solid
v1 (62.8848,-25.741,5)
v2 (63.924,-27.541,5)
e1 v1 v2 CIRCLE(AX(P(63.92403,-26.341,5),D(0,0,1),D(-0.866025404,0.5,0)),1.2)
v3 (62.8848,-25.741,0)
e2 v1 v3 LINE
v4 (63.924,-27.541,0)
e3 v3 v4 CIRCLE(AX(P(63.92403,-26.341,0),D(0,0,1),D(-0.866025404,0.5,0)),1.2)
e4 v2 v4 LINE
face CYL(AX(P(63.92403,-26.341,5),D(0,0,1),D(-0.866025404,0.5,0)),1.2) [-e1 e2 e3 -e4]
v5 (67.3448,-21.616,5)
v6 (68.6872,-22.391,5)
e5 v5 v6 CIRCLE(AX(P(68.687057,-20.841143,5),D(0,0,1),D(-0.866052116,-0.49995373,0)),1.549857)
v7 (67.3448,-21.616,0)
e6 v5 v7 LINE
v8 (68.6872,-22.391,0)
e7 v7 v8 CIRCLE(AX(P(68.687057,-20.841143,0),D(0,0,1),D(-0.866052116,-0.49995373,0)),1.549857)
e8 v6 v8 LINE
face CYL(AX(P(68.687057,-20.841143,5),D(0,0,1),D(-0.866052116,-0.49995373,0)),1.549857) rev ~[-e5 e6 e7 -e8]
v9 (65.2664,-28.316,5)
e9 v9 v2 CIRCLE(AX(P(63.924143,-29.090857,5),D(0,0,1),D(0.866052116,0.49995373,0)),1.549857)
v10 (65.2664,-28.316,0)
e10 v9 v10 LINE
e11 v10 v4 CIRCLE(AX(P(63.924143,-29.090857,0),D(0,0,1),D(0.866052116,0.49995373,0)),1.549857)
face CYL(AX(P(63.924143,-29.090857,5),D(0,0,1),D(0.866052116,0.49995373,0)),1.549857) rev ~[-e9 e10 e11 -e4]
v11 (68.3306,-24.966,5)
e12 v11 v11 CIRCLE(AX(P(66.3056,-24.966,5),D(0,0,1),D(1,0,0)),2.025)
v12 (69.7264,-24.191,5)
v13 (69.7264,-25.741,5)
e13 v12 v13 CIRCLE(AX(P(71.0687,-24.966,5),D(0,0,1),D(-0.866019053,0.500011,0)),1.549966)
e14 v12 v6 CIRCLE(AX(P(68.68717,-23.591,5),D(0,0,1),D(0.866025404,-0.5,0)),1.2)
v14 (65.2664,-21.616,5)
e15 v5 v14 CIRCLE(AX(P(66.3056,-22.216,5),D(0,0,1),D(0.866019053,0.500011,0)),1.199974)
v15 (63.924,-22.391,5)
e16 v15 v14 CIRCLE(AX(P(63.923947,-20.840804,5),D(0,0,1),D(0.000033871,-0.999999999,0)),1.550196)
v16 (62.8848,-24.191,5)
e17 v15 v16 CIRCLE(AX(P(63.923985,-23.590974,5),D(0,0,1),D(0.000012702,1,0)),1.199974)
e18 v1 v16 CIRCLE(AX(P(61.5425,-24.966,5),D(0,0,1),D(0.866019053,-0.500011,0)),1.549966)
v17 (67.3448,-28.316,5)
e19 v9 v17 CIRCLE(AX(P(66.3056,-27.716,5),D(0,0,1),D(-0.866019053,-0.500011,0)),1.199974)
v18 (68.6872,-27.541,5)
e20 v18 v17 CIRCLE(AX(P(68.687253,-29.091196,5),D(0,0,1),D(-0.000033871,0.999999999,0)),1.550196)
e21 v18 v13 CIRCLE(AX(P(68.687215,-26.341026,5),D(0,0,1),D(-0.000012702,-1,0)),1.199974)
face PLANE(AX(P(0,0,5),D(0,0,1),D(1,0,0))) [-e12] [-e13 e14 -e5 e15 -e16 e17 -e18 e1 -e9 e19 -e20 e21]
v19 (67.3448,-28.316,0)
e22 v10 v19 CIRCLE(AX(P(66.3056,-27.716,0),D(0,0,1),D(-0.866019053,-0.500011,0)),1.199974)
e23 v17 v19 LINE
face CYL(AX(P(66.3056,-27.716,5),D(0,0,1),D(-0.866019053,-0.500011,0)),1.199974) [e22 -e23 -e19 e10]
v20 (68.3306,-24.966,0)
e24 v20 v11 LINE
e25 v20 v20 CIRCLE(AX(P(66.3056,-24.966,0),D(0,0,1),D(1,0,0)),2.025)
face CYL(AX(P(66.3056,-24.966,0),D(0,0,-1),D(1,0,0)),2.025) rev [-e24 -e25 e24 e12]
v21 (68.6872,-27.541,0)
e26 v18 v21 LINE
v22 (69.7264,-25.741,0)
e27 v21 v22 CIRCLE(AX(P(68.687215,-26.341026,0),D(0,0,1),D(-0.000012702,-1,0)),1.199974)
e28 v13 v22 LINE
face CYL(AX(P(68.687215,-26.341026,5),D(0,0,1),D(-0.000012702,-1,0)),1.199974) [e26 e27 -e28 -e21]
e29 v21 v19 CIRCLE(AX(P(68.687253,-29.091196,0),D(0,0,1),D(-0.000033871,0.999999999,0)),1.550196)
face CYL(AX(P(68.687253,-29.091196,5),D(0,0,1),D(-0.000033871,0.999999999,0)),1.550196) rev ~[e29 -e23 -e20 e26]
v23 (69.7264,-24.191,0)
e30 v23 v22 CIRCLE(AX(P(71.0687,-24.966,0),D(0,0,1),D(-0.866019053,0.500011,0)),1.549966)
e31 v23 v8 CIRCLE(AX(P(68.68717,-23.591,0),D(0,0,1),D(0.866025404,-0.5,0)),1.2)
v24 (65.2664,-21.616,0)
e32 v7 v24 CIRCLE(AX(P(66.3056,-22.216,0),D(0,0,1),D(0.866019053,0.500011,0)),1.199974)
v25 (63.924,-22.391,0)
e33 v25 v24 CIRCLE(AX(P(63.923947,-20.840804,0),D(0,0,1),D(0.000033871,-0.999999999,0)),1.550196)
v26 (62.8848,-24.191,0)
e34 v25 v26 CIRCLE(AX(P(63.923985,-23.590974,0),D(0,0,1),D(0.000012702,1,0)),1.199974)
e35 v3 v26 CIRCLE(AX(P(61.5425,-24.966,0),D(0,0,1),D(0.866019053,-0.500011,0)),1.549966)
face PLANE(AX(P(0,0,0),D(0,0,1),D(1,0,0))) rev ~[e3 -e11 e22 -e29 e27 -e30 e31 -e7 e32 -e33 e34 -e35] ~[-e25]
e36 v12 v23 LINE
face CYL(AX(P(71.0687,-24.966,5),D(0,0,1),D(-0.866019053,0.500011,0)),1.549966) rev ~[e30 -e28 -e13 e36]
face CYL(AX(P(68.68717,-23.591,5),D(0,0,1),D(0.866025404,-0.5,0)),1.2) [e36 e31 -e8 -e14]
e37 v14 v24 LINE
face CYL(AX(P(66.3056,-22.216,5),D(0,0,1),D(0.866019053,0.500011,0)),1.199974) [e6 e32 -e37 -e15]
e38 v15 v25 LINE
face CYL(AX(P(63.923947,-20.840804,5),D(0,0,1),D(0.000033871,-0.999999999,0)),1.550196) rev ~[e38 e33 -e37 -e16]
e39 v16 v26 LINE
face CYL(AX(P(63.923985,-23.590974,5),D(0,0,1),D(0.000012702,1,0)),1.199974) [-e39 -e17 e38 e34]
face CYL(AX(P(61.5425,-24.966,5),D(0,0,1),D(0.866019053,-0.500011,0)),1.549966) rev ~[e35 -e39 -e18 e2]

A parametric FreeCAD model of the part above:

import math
import FreeCAD as App
import Part
import Sketcher

doc = App.newDocument("Part")
params = doc.addObject("Spreadsheet::Sheet", "Params")
for row, (alias, value) in enumerate([
    ("sketch1_radius", "1.5 mm"),
    ("sketch1_diameter", "4.05 mm"),
    ("sketch1_radius2", "1.25 mm"),
    ("pad1_length", "5 mm"),
    ("sketch2_radius", "1.5 mm"),
    ("sketch2_radius2", "1.2 mm"),
    ("sketch2_radius3", "1.25 mm"),
    ("pocket1_length", "10 mm"),
], start=1):
    params.set(f"A{row}", alias)
    params.set(f"B{row}", "=" + value)
    params.setAlias(f"B{row}", alias)

body = doc.addObject("PartDesign::Body", "Body")

# Sketch on XY plane
sketch1 = body.newObject("Sketcher::SketchObject", "Sketch")
sketch1.AttachmentSupport = (doc.getObject("XY_Plane"), [""])
sketch1.MapMode = "FlatFace"
sketch1.addGeometry(Part.ArcOfCircle(Part.Circle(App.Vector(71.1, -25, 0), App.Vector(0, 0, 1), 1.5), math.radians(150), math.radians(210)), False)
sketch1.addGeometry(Part.ArcOfCircle(Part.Circle(App.Vector(68.7, -23.6, 0), App.Vector(0, 0, 1), 1.2), math.radians(-30), math.radians(90)), False)
sketch1.addGeometry(Part.ArcOfCircle(Part.Circle(App.Vector(68.7, -20.8, 0), App.Vector(0, 0, 1), 1.5), math.radians(-150), math.radians(-90)), False)
sketch1.addGeometry(Part.ArcOfCircle(Part.Circle(App.Vector(66.3, -22.2, 0), App.Vector(0, 0, 1), 1.2), math.radians(30), math.radians(150)), False)
sketch1.addGeometry(Part.ArcOfCircle(Part.Circle(App.Vector(63.9, -20.8, 0), App.Vector(0, 0, 1), 1.5), math.radians(-90), math.radians(-30)), False)
sketch1.addGeometry(Part.ArcOfCircle(Part.Circle(App.Vector(63.9, -23.6, 0), App.Vector(0, 0, 1), 1.2), math.radians(90), math.radians(210)), False)
sketch1.addGeometry(Part.ArcOfCircle(Part.Circle(App.Vector(61.5, -25, 0), App.Vector(0, 0, 1), 1.5), math.radians(-30), math.radians(30)), False)
sketch1.addGeometry(Part.ArcOfCircle(Part.Circle(App.Vector(63.9, -26.3, 0), App.Vector(0, 0, 1), 1.2), math.radians(150), math.radians(270)), False)
sketch1.addGeometry(Part.ArcOfCircle(Part.Circle(App.Vector(63.9, -29.1, 0), App.Vector(0, 0, 1), 1.5), math.radians(30), math.radians(90)), False)
sketch1.addGeometry(Part.ArcOfCircle(Part.Circle(App.Vector(66.3, -27.7, 0), App.Vector(0, 0, 1), 1.2), math.radians(-150), math.radians(-30)), False)
sketch1.addGeometry(Part.ArcOfCircle(Part.Circle(App.Vector(68.7, -29.1, 0), App.Vector(0, 0, 1), 1.5), math.radians(90), math.radians(150)), False)
sketch1.addGeometry(Part.ArcOfCircle(Part.Circle(App.Vector(68.7, -26.3, 0), App.Vector(0, 0, 1), 1.2), math.radians(-90), math.radians(30)), False)
sketch1.addGeometry(Part.Circle(App.Vector(66.3, -25, 0), App.Vector(0, 0, 1), 2), False)
sketch1.addConstraint(Sketcher.Constraint("Tangent", 0, 1, 1, 1))
sketch1.addConstraint(Sketcher.Constraint("Tangent", 1, 2, 2, 2))
sketch1.addConstraint(Sketcher.Constraint("Tangent", 2, 1, 3, 1))
sketch1.addConstraint(Sketcher.Constraint("Tangent", 3, 2, 4, 2))
sketch1.addConstraint(Sketcher.Constraint("Tangent", 4, 1, 5, 1))
sketch1.addConstraint(Sketcher.Constraint("Tangent", 5, 2, 6, 2))
sketch1.addConstraint(Sketcher.Constraint("Tangent", 6, 1, 7, 1))
sketch1.addConstraint(Sketcher.Constraint("Tangent", 7, 2, 8, 2))
sketch1.addConstraint(Sketcher.Constraint("Tangent", 8, 1, 9, 1))
sketch1.addConstraint(Sketcher.Constraint("Tangent", 9, 2, 10, 2))
sketch1.addConstraint(Sketcher.Constraint("Tangent", 10, 1, 11, 1))
sketch1.addConstraint(Sketcher.Constraint("Tangent", 11, 2, 0, 2))
sketch1.addConstraint(Sketcher.Constraint("Equal", 0, 2))
sketch1.addConstraint(Sketcher.Constraint("Equal", 1, 3))
sketch1.addConstraint(Sketcher.Constraint("Equal", 2, 4))
sketch1.addConstraint(Sketcher.Constraint("Equal", 3, 5))
sketch1.addConstraint(Sketcher.Constraint("Equal", 4, 6))
sketch1.addConstraint(Sketcher.Constraint("Equal", 5, 7))
sketch1.addConstraint(Sketcher.Constraint("Equal", 6, 8))
sketch1.addConstraint(Sketcher.Constraint("Equal", 7, 9))
sketch1.addConstraint(Sketcher.Constraint("Equal", 8, 10))
sketch1.addConstraint(Sketcher.Constraint("Equal", 9, 11))
sketch1.addConstraint(Sketcher.Constraint("Horizontal", 2, 3, 4, 3))
sketch1.addConstraint(Sketcher.Constraint("Horizontal", 0, 3, 6, 3))
sketch1.addConstraint(Sketcher.Constraint("Horizontal", 8, 3, 10, 3))
sketch1.addConstraint(Sketcher.Constraint("Horizontal", 6, 3, 12, 3))
sketch1.addConstraint(Sketcher.Constraint("Vertical", 1, 3, 2, 3))
sketch1.addConstraint(Sketcher.Constraint("Vertical", 4, 3, 5, 3))
sketch1.addConstraint(Sketcher.Constraint("Vertical", 5, 3, 7, 3))
sketch1.addConstraint(Sketcher.Constraint("Vertical", 7, 3, 8, 3))
sketch1.addConstraint(Sketcher.Constraint("Vertical", 3, 3, 9, 3))
sketch1.addConstraint(Sketcher.Constraint("Vertical", 9, 3, 12, 3))
sketch1.addConstraint(Sketcher.Constraint("Radius", 0, 1.5))
sketch1.addConstraint(Sketcher.Constraint("Diameter", 12, 4.05))
sketch1.addConstraint(Sketcher.Constraint("Radius", 1, 1.25))
sketch1.addConstraint(Sketcher.Constraint("DistanceY", 6, 1, 5, 2, 1.5))
sketch1.addConstraint(Sketcher.Constraint("DistanceY", 1, 3, 2, 1, 2.0))
sketch1.addConstraint(Sketcher.Constraint("DistanceY", 0, 3, -1, 1, 24.966))
sketch1.addConstraint(Sketcher.Constraint("DistanceX", -1, 1, 4, 3, 63.924))
sketch1.setExpression("Constraints[32]", "Params.sketch1_radius")
sketch1.setExpression("Constraints[33]", "Params.sketch1_diameter")
sketch1.setExpression("Constraints[34]", "Params.sketch1_radius2")
pad1 = body.newObject("PartDesign::Pad", "Pad")
pad1.Profile = sketch1
pad1.setExpression("Length", "Params.pad1_length")

# Sketch on XY plane
sketch2 = body.newObject("Sketcher::SketchObject", "Sketch001")
sketch2.AttachmentSupport = (doc.getObject("XY_Plane"), [""])
sketch2.MapMode = "FlatFace"
sketch2.AttachmentOffset = App.Placement(App.Vector(0, 0, 5), App.Rotation())
sketch2.addGeometry(Part.ArcOfCircle(Part.Circle(App.Vector(68.7, -20.8, 0), App.Vector(0, 0, 1), 1.5), math.radians(-150), math.radians(-90)), False)
sketch2.addGeometry(Part.ArcOfCircle(Part.Circle(App.Vector(66.3, -22.2, 0), App.Vector(0, 0, 1), 1.2), math.radians(30), math.radians(150)), False)
sketch2.addGeometry(Part.ArcOfCircle(Part.Circle(App.Vector(63.9, -20.8, 0), App.Vector(0, 0, 1), 1.5), math.radians(-90), math.radians(-30)), False)
sketch2.addGeometry(Part.ArcOfCircle(Part.Circle(App.Vector(63.9, -23.6, 0), App.Vector(0, 0, 1), 1.2), math.radians(90), math.radians(210)), False)
sketch2.addGeometry(Part.ArcOfCircle(Part.Circle(App.Vector(61.5, -25, 0), App.Vector(0, 0, 1), 1.5), math.radians(-30), math.radians(30)), False)
sketch2.addGeometry(Part.ArcOfCircle(Part.Circle(App.Vector(63.9, -26.3, 0), App.Vector(0, 0, 1), 1.2), math.radians(150), math.radians(270)), False)
sketch2.addGeometry(Part.ArcOfCircle(Part.Circle(App.Vector(63.9, -29.1, 0), App.Vector(0, 0, 1), 1.5), math.radians(30), math.radians(90)), False)
sketch2.addGeometry(Part.ArcOfCircle(Part.Circle(App.Vector(66.3, -27.7, 0), App.Vector(0, 0, 1), 1.2), math.radians(-150), math.radians(-30)), False)
sketch2.addGeometry(Part.ArcOfCircle(Part.Circle(App.Vector(68.7, -29.1, 0), App.Vector(0, 0, 1), 1.5), math.radians(90), math.radians(150)), False)
sketch2.addGeometry(Part.ArcOfCircle(Part.Circle(App.Vector(68.7, -26.3, 0), App.Vector(0, 0, 1), 1.2), math.radians(-90), math.radians(30)), False)
sketch2.addGeometry(Part.ArcOfCircle(Part.Circle(App.Vector(71.1, -25, 0), App.Vector(0, 0, 1), 1.5), math.radians(150), math.radians(210)), False)
sketch2.addGeometry(Part.ArcOfCircle(Part.Circle(App.Vector(68.7, -23.6, 0), App.Vector(0, 0, 1), 1.2), math.radians(-30), math.radians(90)), False)
sketch2.addGeometry(Part.ArcOfCircle(Part.Circle(App.Vector(66.3, -22.2, 0), App.Vector(0, 0, 1), 1.2), math.radians(30), math.radians(150)), False)
sketch2.addGeometry(Part.ArcOfCircle(Part.Circle(App.Vector(68.7, -20.8, 0), App.Vector(0, 0, 1), 1.6), math.radians(-150), math.radians(-90)), False)
sketch2.addGeometry(Part.ArcOfCircle(Part.Circle(App.Vector(68.7, -23.6, 0), App.Vector(0, 0, 1), 1.2), math.radians(-30), math.radians(90)), False)
sketch2.addGeometry(Part.ArcOfCircle(Part.Circle(App.Vector(71.1, -25, 0), App.Vector(0, 0, 1), 1.5), math.radians(150), math.radians(210)), False)
sketch2.addGeometry(Part.ArcOfCircle(Part.Circle(App.Vector(68.7, -26.3, 0), App.Vector(0, 0, 1), 1.2), math.radians(-90), math.radians(30)), False)
sketch2.addGeometry(Part.ArcOfCircle(Part.Circle(App.Vector(68.7, -29.1, 0), App.Vector(0, 0, 1), 1.6), math.radians(90), math.radians(150)), False)
sketch2.addGeometry(Part.ArcOfCircle(Part.Circle(App.Vector(66.3, -27.7, 0), App.Vector(0, 0, 1), 1.2), math.radians(-150), math.radians(-30)), False)
sketch2.addGeometry(Part.ArcOfCircle(Part.Circle(App.Vector(63.9, -29.1, 0), App.Vector(0, 0, 1), 1.6), math.radians(30), math.radians(90)), False)
sketch2.addGeometry(Part.ArcOfCircle(Part.Circle(App.Vector(63.9, -26.3, 0), App.Vector(0, 0, 1), 1.2), math.radians(150), math.radians(270)), False)
sketch2.addGeometry(Part.ArcOfCircle(Part.Circle(App.Vector(61.5, -25, 0), App.Vector(0, 0, 1), 1.5), math.radians(-30), math.radians(30)), False)
sketch2.addGeometry(Part.ArcOfCircle(Part.Circle(App.Vector(63.9, -23.6, 0), App.Vector(0, 0, 1), 1.2), math.radians(90), math.radians(210)), False)
sketch2.addGeometry(Part.ArcOfCircle(Part.Circle(App.Vector(63.9, -20.8, 0), App.Vector(0, 0, 1), 1.5), math.radians(-90), math.radians(-30)), False)
sketch2.addConstraint(Sketcher.Constraint("Tangent", 0, 1, 1, 1))
sketch2.addConstraint(Sketcher.Constraint("Tangent", 1, 2, 2, 2))
sketch2.addConstraint(Sketcher.Constraint("Tangent", 2, 1, 3, 1))
sketch2.addConstraint(Sketcher.Constraint("Tangent", 3, 2, 4, 2))
sketch2.addConstraint(Sketcher.Constraint("Tangent", 4, 1, 5, 1))
sketch2.addConstraint(Sketcher.Constraint("Tangent", 5, 2, 6, 2))
sketch2.addConstraint(Sketcher.Constraint("Tangent", 6, 1, 7, 1))
sketch2.addConstraint(Sketcher.Constraint("Tangent", 7, 2, 8, 2))
sketch2.addConstraint(Sketcher.Constraint("Tangent", 8, 1, 9, 1))
sketch2.addConstraint(Sketcher.Constraint("Tangent", 9, 2, 10, 2))
sketch2.addConstraint(Sketcher.Constraint("Tangent", 10, 1, 11, 1))
sketch2.addConstraint(Sketcher.Constraint("Tangent", 11, 2, 0, 2))
sketch2.addConstraint(Sketcher.Constraint("Tangent", 12, 1, 13, 1))
sketch2.addConstraint(Sketcher.Constraint("Tangent", 13, 2, 14, 2))
sketch2.addConstraint(Sketcher.Constraint("Tangent", 14, 1, 15, 1))
sketch2.addConstraint(Sketcher.Constraint("Tangent", 15, 2, 16, 2))
sketch2.addConstraint(Sketcher.Constraint("Tangent", 16, 1, 17, 1))
sketch2.addConstraint(Sketcher.Constraint("Tangent", 17, 2, 18, 2))
sketch2.addConstraint(Sketcher.Constraint("Tangent", 18, 1, 19, 1))
sketch2.addConstraint(Sketcher.Constraint("Tangent", 19, 2, 20, 2))
sketch2.addConstraint(Sketcher.Constraint("Tangent", 20, 1, 21, 1))
sketch2.addConstraint(Sketcher.Constraint("Tangent", 21, 2, 22, 2))
sketch2.addConstraint(Sketcher.Constraint("Tangent", 22, 1, 23, 1))
sketch2.addConstraint(Sketcher.Constraint("Tangent", 23, 2, 12, 2))
sketch2.addConstraint(Sketcher.Constraint("Coincident", 12, 3, 1, 3))
sketch2.addConstraint(Sketcher.Constraint("Coincident", 13, 3, 0, 3))
sketch2.addConstraint(Sketcher.Constraint("Coincident", 14, 3, 11, 3))
sketch2.addConstraint(Sketcher.Constraint("Coincident", 15, 3, 10, 3))
sketch2.addConstraint(Sketcher.Constraint("Coincident", 16, 3, 9, 3))
sketch2.addConstraint(Sketcher.Constraint("Coincident", 17, 3, 8, 3))
sketch2.addConstraint(Sketcher.Constraint("Coincident", 18, 3, 7, 3))
sketch2.addConstraint(Sketcher.Constraint("Coincident", 19, 3, 6, 3))
sketch2.addConstraint(Sketcher.Constraint("Coincident", 20, 3, 5, 3))
sketch2.addConstraint(Sketcher.Constraint("Coincident", 21, 3, 4, 3))
sketch2.addConstraint(Sketcher.Constraint("Coincident", 22, 3, 3, 3))
sketch2.addConstraint(Sketcher.Constraint("Equal", 0, 2))
sketch2.addConstraint(Sketcher.Constraint("Equal", 1, 3))
sketch2.addConstraint(Sketcher.Constraint("Equal", 2, 4))
sketch2.addConstraint(Sketcher.Constraint("Equal", 3, 5))
sketch2.addConstraint(Sketcher.Constraint("Equal", 4, 6))
sketch2.addConstraint(Sketcher.Constraint("Equal", 5, 7))
sketch2.addConstraint(Sketcher.Constraint("Equal", 6, 8))
sketch2.addConstraint(Sketcher.Constraint("Equal", 7, 9))
sketch2.addConstraint(Sketcher.Constraint("Equal", 8, 10))
sketch2.addConstraint(Sketcher.Constraint("Equal", 9, 11))
sketch2.addConstraint(Sketcher.Constraint("Equal", 21, 23))
sketch2.addConstraint(Sketcher.Constraint("Horizontal", 0, 3, 2, 3))
sketch2.addConstraint(Sketcher.Constraint("Horizontal", 6, 3, 8, 3))
sketch2.addConstraint(Sketcher.Constraint("Horizontal", 4, 3, 10, 3))
sketch2.addConstraint(Sketcher.Constraint("Vertical", 2, 3, 3, 3))
sketch2.addConstraint(Sketcher.Constraint("Vertical", 3, 3, 5, 3))
sketch2.addConstraint(Sketcher.Constraint("Vertical", 5, 3, 6, 3))
sketch2.addConstraint(Sketcher.Constraint("Vertical", 1, 3, 7, 3))
sketch2.addConstraint(Sketcher.Constraint("Vertical", 8, 3, 9, 3))
sketch2.addConstraint(Sketcher.Constraint("Radius", 0, 1.5))
sketch2.addConstraint(Sketcher.Constraint("Radius", 12, 1.2))
sketch2.addConstraint(Sketcher.Constraint("Radius", 1, 1.25))
sketch2.addConstraint(Sketcher.Constraint("DistanceY", 11, 3, 0, 1, 2.0))
sketch2.addConstraint(Sketcher.Constraint("DistanceY", 5, 3, 2, 3, 5.5))
sketch2.addConstraint(Sketcher.Constraint("DistanceY", 0, 3, -1, 1, 20.841))
sketch2.addConstraint(Sketcher.Constraint("DistanceX", -1, 1, 2, 3, 63.924))
sketch2.setExpression("Constraints[54]", "Params.sketch2_radius")
sketch2.setExpression("Constraints[55]", "Params.sketch2_radius2")
sketch2.setExpression("Constraints[56]", "Params.sketch2_radius3")
pocket1 = body.newObject("PartDesign::Pocket", "Pocket")
pocket1.Profile = sketch2
pocket1.setExpression("Length", "Params.pocket1_length")

doc.recompute()
